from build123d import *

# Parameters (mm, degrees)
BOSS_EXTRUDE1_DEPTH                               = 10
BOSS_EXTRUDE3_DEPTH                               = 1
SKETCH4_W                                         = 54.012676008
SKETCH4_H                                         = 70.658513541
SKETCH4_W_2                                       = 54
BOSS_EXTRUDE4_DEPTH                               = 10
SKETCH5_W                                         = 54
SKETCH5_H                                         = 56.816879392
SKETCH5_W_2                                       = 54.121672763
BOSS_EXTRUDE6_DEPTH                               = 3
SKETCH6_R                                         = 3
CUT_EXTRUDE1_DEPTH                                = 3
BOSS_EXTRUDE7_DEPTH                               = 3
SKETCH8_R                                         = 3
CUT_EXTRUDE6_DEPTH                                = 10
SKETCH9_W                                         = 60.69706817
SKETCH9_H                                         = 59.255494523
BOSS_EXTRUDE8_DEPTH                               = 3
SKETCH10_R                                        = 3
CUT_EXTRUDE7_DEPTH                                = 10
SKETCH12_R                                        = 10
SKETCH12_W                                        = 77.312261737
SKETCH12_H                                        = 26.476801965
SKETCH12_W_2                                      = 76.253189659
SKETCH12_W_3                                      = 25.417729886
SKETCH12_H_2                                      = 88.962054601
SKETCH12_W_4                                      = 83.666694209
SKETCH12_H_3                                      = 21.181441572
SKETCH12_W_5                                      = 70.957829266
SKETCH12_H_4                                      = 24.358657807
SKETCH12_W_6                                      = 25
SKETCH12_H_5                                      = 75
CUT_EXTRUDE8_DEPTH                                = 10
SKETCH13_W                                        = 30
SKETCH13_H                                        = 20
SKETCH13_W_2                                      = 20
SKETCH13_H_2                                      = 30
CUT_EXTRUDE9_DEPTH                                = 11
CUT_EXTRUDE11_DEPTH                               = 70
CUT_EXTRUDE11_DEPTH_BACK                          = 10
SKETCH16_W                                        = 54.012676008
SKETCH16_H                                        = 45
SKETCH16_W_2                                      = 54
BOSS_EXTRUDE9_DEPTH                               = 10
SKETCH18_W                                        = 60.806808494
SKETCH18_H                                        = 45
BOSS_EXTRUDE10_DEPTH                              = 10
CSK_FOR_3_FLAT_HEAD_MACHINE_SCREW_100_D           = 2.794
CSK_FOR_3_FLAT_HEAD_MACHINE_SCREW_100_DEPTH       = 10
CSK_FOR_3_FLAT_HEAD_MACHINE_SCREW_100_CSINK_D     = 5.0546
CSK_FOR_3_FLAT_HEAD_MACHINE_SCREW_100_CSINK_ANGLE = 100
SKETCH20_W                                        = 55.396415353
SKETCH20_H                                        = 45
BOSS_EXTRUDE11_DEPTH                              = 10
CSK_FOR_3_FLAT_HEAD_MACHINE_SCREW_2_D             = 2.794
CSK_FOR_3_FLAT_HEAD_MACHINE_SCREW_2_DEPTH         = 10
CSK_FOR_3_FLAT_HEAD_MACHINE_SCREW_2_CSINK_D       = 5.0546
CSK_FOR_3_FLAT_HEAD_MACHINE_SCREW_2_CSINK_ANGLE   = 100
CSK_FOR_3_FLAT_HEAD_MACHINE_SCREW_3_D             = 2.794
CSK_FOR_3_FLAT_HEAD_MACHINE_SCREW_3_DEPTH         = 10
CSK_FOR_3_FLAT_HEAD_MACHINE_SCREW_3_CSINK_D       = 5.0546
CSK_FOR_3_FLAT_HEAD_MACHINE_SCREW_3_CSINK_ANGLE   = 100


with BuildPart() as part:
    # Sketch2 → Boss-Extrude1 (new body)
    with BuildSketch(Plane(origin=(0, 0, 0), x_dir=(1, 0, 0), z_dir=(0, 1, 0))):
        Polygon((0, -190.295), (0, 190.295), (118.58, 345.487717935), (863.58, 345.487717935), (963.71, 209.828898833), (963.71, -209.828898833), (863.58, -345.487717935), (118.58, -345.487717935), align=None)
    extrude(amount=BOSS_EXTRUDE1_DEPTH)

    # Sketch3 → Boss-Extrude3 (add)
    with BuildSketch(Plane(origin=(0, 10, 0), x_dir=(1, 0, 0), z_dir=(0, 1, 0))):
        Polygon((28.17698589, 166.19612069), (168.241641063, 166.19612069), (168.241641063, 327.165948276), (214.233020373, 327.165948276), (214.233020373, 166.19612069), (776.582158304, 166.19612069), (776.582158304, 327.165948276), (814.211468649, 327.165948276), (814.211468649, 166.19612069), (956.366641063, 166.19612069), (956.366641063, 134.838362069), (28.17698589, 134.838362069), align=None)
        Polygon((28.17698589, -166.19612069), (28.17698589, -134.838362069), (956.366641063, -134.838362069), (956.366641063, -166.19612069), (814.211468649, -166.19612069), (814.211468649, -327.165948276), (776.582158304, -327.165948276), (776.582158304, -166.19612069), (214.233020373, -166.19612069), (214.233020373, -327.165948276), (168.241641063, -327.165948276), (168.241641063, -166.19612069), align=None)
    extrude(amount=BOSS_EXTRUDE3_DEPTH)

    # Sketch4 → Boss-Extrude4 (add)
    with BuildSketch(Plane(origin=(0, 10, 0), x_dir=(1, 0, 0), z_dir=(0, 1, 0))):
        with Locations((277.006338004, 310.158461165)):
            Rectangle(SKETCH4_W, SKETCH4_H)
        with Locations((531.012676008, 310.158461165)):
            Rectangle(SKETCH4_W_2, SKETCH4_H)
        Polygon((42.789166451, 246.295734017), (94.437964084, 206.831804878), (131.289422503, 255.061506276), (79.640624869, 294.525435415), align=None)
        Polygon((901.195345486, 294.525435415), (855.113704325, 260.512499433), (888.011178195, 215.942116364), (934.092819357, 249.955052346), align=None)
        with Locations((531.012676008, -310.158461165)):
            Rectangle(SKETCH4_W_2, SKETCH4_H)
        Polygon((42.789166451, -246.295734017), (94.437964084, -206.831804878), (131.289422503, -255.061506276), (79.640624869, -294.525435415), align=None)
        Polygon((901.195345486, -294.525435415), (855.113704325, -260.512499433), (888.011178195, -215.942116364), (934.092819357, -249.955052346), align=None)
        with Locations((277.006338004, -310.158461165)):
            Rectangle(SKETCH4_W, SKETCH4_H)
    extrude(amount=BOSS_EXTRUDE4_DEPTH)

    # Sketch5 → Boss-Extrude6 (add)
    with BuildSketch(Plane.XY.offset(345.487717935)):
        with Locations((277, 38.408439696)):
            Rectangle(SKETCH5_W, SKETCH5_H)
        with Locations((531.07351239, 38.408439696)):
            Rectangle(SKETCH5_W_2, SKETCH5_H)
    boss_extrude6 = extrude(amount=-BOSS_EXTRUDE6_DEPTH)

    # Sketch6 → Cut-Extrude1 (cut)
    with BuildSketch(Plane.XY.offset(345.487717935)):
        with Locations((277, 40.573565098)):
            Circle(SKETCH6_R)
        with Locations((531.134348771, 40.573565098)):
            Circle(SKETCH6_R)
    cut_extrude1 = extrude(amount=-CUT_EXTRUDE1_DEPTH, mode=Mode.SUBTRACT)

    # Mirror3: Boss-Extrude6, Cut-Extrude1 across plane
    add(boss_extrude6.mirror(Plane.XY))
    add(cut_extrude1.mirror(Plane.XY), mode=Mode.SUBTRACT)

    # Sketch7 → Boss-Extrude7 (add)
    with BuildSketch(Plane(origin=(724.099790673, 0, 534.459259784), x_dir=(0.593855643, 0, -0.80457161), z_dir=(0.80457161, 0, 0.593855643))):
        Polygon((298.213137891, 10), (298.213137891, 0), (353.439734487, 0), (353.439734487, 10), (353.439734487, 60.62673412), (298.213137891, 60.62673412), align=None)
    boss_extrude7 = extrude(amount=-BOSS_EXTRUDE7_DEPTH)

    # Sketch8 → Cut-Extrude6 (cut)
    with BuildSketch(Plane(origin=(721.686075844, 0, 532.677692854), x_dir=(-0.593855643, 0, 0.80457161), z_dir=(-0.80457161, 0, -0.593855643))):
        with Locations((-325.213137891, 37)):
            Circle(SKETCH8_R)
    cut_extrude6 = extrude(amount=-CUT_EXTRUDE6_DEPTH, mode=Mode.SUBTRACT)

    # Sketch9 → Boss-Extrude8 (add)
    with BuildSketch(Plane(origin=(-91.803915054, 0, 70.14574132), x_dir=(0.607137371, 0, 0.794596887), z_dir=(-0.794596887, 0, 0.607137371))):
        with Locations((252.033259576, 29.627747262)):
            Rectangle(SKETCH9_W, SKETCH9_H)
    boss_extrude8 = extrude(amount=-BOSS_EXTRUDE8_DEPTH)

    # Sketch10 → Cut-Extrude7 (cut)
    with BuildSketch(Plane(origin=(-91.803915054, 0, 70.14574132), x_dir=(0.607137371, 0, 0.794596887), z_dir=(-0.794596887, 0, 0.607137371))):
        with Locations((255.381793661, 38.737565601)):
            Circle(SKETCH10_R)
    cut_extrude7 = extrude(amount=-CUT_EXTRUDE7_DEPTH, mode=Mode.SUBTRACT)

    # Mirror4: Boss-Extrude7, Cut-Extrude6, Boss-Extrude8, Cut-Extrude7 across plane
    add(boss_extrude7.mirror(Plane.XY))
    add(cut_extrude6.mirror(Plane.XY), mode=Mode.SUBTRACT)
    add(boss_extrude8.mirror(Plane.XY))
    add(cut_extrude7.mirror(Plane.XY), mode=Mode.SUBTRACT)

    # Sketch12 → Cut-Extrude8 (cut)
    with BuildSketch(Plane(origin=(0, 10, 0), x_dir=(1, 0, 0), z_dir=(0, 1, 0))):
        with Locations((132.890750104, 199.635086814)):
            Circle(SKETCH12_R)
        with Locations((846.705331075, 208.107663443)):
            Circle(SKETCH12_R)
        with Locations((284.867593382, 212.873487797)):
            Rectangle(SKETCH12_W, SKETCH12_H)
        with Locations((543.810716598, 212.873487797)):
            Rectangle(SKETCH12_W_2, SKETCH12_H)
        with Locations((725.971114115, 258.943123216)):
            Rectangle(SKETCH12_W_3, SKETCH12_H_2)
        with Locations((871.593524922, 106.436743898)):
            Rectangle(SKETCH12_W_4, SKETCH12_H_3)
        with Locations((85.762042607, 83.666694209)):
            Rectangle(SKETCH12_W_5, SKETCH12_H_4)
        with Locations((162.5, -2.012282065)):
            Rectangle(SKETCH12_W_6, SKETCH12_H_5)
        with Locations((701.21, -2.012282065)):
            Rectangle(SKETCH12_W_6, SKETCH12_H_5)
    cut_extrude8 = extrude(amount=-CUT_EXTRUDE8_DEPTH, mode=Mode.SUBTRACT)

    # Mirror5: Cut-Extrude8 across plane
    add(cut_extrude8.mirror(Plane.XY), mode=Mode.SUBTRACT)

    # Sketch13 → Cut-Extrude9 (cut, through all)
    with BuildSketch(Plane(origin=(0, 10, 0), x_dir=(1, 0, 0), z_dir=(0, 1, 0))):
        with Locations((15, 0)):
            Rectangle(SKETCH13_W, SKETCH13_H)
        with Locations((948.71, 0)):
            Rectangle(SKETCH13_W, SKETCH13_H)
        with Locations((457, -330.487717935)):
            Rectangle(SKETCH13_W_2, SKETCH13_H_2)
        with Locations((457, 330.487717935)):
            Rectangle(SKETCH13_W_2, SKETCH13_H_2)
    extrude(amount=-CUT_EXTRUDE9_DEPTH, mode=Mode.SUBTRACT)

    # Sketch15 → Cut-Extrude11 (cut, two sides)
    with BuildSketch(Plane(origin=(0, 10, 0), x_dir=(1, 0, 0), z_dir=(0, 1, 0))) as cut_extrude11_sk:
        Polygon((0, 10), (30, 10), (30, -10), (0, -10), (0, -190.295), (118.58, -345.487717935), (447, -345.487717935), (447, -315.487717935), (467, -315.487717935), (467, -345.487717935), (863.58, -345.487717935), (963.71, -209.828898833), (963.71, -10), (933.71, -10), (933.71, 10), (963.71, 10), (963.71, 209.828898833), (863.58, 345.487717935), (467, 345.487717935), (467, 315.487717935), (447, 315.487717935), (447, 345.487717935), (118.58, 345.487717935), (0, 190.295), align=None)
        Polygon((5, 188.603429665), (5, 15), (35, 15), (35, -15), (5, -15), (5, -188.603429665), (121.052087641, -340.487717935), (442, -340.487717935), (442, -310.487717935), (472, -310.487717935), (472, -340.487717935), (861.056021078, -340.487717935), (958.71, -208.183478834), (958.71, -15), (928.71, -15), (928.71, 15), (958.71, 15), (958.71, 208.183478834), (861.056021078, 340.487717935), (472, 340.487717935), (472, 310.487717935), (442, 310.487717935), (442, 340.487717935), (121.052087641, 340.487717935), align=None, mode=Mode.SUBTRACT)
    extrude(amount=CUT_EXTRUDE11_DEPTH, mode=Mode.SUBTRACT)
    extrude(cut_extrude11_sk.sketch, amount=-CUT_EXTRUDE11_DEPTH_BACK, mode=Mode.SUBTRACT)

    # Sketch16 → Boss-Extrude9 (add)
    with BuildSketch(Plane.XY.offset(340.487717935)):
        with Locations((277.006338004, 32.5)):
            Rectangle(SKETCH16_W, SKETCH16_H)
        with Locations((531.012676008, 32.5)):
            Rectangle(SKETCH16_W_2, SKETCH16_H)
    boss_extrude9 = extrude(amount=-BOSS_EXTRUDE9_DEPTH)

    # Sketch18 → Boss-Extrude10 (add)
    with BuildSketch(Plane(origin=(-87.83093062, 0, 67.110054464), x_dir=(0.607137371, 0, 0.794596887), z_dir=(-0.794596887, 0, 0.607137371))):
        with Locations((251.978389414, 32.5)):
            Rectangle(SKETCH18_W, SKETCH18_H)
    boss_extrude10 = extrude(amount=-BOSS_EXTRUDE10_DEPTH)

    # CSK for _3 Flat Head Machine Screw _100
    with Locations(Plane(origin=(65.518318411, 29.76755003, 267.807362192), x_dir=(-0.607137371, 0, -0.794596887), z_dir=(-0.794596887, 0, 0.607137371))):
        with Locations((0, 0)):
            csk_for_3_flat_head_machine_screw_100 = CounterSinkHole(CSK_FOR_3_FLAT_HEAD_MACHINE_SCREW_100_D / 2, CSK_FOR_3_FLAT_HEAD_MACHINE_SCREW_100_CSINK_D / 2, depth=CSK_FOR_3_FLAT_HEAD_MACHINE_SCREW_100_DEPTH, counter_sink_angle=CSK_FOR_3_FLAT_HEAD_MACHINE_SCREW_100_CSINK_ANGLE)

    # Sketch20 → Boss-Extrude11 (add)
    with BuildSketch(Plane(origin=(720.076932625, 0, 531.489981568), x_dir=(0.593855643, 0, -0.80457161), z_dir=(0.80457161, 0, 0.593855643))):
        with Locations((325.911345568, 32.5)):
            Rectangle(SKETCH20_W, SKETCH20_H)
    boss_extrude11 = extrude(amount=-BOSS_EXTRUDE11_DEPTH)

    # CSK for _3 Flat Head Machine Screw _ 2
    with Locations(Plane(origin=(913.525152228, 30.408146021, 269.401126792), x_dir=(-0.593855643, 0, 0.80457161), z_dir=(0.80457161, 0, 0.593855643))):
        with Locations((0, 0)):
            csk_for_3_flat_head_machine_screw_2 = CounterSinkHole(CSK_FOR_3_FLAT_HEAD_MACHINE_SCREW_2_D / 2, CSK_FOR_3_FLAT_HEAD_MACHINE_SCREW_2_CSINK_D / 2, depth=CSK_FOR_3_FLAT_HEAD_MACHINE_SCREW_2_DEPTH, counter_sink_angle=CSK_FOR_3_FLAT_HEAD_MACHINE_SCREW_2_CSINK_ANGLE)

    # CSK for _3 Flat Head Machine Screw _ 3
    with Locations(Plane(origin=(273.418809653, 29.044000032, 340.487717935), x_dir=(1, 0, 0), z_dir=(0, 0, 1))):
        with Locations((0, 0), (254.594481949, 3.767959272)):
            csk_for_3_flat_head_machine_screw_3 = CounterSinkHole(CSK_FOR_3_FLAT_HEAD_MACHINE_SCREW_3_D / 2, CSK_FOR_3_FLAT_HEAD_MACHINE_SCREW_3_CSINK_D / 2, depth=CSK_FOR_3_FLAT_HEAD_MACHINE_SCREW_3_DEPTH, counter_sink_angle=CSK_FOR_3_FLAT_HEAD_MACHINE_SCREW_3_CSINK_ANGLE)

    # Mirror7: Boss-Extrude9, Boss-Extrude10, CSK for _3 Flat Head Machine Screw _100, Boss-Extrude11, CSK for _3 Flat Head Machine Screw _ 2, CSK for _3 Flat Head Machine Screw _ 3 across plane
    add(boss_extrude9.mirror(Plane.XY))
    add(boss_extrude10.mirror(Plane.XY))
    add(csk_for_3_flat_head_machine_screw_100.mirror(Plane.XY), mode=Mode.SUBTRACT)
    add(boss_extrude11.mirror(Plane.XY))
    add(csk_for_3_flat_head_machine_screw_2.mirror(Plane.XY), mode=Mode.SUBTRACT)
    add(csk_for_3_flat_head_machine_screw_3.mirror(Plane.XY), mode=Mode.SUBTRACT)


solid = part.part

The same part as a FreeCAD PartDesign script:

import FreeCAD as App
import Part
import Sketcher


def add_polygon(sketch, points):
    """Adds a closed chain of lines whose ends are joined by coincident constraints."""
    first, n = sketch.GeometryCount, len(points)
    for a, b in zip(points, points[1:] + points[:1]):
        sketch.addGeometry(Part.LineSegment(App.Vector(*a, 0), App.Vector(*b, 0)), False)
    for i in range(n):
        sketch.addConstraint(Sketcher.Constraint("Coincident", first + i, 2, first + (i + 1) % n, 1))

doc = App.newDocument("Part")
body = doc.addObject("PartDesign::Body", "Body")

sketch1 = body.newObject("Sketcher::SketchObject", "Sketch")
sketch1.AttachmentSupport = (doc.getObject("XZ_Plane"), [""])
sketch1.MapMode = "FlatFace"
add_polygon(sketch1, [(0, -190), (0, 190), (119, 345), (864, 345), (964, 210), (964, -210), (864, -345), (119, -345)])
sketch1.addConstraint(Sketcher.Constraint("Vertical", 0))
sketch1.addConstraint(Sketcher.Constraint("Horizontal", 2))
sketch1.addConstraint(Sketcher.Constraint("Vertical", 4))
sketch1.addConstraint(Sketcher.Constraint("Horizontal", 6))
sketch1.addConstraint(Sketcher.Constraint("Symmetric", 0, 2, 7, 2, -1, 1))
sketch1.addConstraint(Sketcher.Constraint("Symmetric", 2, 2, 5, 2, -1))
sketch1.addConstraint(Sketcher.Constraint("Vertical", 1, 2, 6, 2))
sketch1.addConstraint(Sketcher.Constraint("Equal", 3, 5))
sketch1.addConstraint(Sketcher.Constraint("DistanceX", 2, 1, 2, 2, 745.0))
sketch1.addConstraint(Sketcher.Constraint("DistanceY", 0, 1, 0, 2, 380.59))
sketch1.addConstraint(Sketcher.Constraint("Distance", 1, 195.31))
sketch1.addConstraint(Sketcher.Constraint("Distance", 3, 168.61))
sketch1.addConstraint(Sketcher.Constraint("DistanceX", -1, 1, 1, 2, 118.58))
sketch1.addConstraint(Sketcher.Constraint("DistanceX", -1, 1, 3, 2, 963.71))
pad1 = body.newObject("PartDesign::Pad", "Pad")
pad1.Profile = sketch1
pad1.Length = 10
pad1.Reversed = True

sketch2 = body.newObject("Sketcher::SketchObject", "Sketch001")
sketch2.AttachmentSupport = (doc.getObject("XZ_Plane"), [""])
sketch2.MapMode = "FlatFace"
sketch2.AttachmentOffset = App.Placement(App.Vector(0, 0, -10), App.Rotation())
add_polygon(sketch2, [(168, -166), (28, -166), (28, -135), (956, -135), (956, -166), (814, -166), (814, -327), (777, -327), (777, -166), (214, -166), (214, -327), (168, -327)])
add_polygon(sketch2, [(28, 135), (28, 166), (168, 166), (168, 327), (214, 327), (214, 166), (777, 166), (777, 327), (814, 327), (814, 166), (956, 166), (956, 135)])
sketch2.addConstraint(Sketcher.Constraint("Horizontal", 0))
sketch2.addConstraint(Sketcher.Constraint("Vertical", 1))
sketch2.addConstraint(Sketcher.Constraint("Horizontal", 2))
sketch2.addConstraint(Sketcher.Constraint("Vertical", 3))
sketch2.addConstraint(Sketcher.Constraint("Horizontal", 4))
sketch2.addConstraint(Sketcher.Constraint("Vertical", 5))
sketch2.addConstraint(Sketcher.Constraint("Horizontal", 6))
sketch2.addConstraint(Sketcher.Constraint("Vertical", 7))
sketch2.addConstraint(Sketcher.Constraint("Horizontal", 8))
sketch2.addConstraint(Sketcher.Constraint("Vertical", 9))
sketch2.addConstraint(Sketcher.Constraint("Horizontal", 10))
sketch2.addConstraint(Sketcher.Constraint("Vertical", 11))
sketch2.addConstraint(Sketcher.Constraint("Vertical", 12))
sketch2.addConstraint(Sketcher.Constraint("Horizontal", 13))
sketch2.addConstraint(Sketcher.Constraint("Vertical", 14))
sketch2.addConstraint(Sketcher.Constraint("Horizontal", 15))
sketch2.addConstraint(Sketcher.Constraint("Vertical", 16))
sketch2.addConstraint(Sketcher.Constraint("Horizontal", 17))
sketch2.addConstraint(Sketcher.Constraint("Vertical", 18))
sketch2.addConstraint(Sketcher.Constraint("Horizontal", 19))
sketch2.addConstraint(Sketcher.Constraint("Vertical", 20))
sketch2.addConstraint(Sketcher.Constraint("Horizontal", 21))
sketch2.addConstraint(Sketcher.Constraint("Vertical", 22))
sketch2.addConstraint(Sketcher.Constraint("Horizontal", 23))
sketch2.addConstraint(Sketcher.Constraint("Symmetric", 0, 2, 12, 2, -1))
sketch2.addConstraint(Sketcher.Constraint("Symmetric", 10, 2, 14, 2, -1))
sketch2.addConstraint(Sketcher.Constraint("Symmetric", 8, 2, 16, 2, -1))
sketch2.addConstraint(Sketcher.Constraint("Symmetric", 6, 2, 18, 2, -1))
sketch2.addConstraint(Sketcher.Constraint("Symmetric", 4, 2, 20, 2, -1))
sketch2.addConstraint(Sketcher.Constraint("Symmetric", 2, 2, 22, 2, -1))
sketch2.addConstraint(Sketcher.Constraint("Horizontal", 0, 2, 3, 2))
sketch2.addConstraint(Sketcher.Constraint("Horizontal", 4, 2, 7, 2))
sketch2.addConstraint(Sketcher.Constraint("Horizontal", 6, 2, 9, 2))
sketch2.addConstraint(Sketcher.Constraint("DistanceX", 6, 2, 6, 1, 37.62931))
sketch2.addConstraint(Sketcher.Constraint("DistanceX", 10, 2, 10, 1, 45.991379))
sketch2.addConstraint(Sketcher.Constraint("DistanceY", 1, 1, 1, 2, 31.357759))
sketch2.addConstraint(Sketcher.Constraint("DistanceX", 0, 2, 0, 1, 140.064655))
sketch2.addConstraint(Sketcher.Constraint("DistanceX", 2, 1, 2, 2, 928.189655))
sketch2.addConstraint(Sketcher.Constraint("DistanceX", 4, 2, 4, 1, 142.155172))
sketch2.addConstraint(Sketcher.Constraint("DistanceY", 5, 2, 5, 1, 160.969828))
sketch2.addConstraint(Sketcher.Constraint("DistanceY", 0, 2, -1, 1, 166.196121))
sketch2.addConstraint(Sketcher.Constraint("DistanceX", -1, 1, 2, 2, 956.366641))
pad2 = body.newObject("PartDesign::Pad", "Pad001")
pad2.Profile = sketch2
pad2.Length = 1
pad2.Reversed = True

sketch3 = body.newObject("Sketcher::SketchObject", "Sketch002")
sketch3.AttachmentSupport = (doc.getObject("XZ_Plane"), [""])
sketch3.MapMode = "FlatFace"
sketch3.AttachmentOffset = App.Placement(App.Vector(0, 0, -10), App.Rotation())
add_polygon(sketch3, [(250, -345), (250, -275), (304, -275), (304, -345)])
add_polygon(sketch3, [(504, -345), (504, -275), (558, -275), (558, -345)])
add_polygon(sketch3, [(43, -246), (94, -207), (131, -255), (80, -295)])
add_polygon(sketch3, [(901, -295), (855, -261), (888, -216), (934, -250)])
add_polygon(sketch3, [(504, 275), (504, 345), (558, 345), (558, 275)])
add_polygon(sketch3, [(94, 207), (43, 246), (80, 295), (131, 255)])
add_polygon(sketch3, [(855, 261), (901, 295), (934, 250), (888, 216)])
add_polygon(sketch3, [(250, 275), (250, 345), (304, 345), (304, 275)])
sketch3.addConstraint(Sketcher.Constraint("Vertical", 0))
sketch3.addConstraint(Sketcher.Constraint("Horizontal", 1))
sketch3.addConstraint(Sketcher.Constraint("Vertical", 2))
sketch3.addConstraint(Sketcher.Constraint("Horizontal", 3))
sketch3.addConstraint(Sketcher.Constraint("Vertical", 4))
sketch3.addConstraint(Sketcher.Constraint("Horizontal", 5))
sketch3.addConstraint(Sketcher.Constraint("Vertical", 6))
sketch3.addConstraint(Sketcher.Constraint("Horizontal", 7))
sketch3.addConstraint(Sketcher.Constraint("Vertical", 16))
sketch3.addConstraint(Sketcher.Constraint("Horizontal", 17))
sketch3.addConstraint(Sketcher.Constraint("Vertical", 18))
sketch3.addConstraint(Sketcher.Constraint("Horizontal", 19))
sketch3.addConstraint(Sketcher.Constraint("Vertical", 28))
sketch3.addConstraint(Sketcher.Constraint("Horizontal", 29))
sketch3.addConstraint(Sketcher.Constraint("Vertical", 30))
sketch3.addConstraint(Sketcher.Constraint("Horizontal", 31))
sketch3.addConstraint(Sketcher.Constraint("Symmetric", 7, 2, 16, 2, -1))
sketch3.addConstraint(Sketcher.Constraint("Symmetric", 5, 2, 18, 2, -1))
sketch3.addConstraint(Sketcher.Constraint("Symmetric", 11, 2, 20, 2, -1))
sketch3.addConstraint(Sketcher.Constraint("Symmetric", 10, 2, 21, 2, -1))
sketch3.addConstraint(Sketcher.Constraint("Symmetric", 9, 2, 22, 2, -1))
sketch3.addConstraint(Sketcher.Constraint("Symmetric", 8, 2, 23, 2, -1))
sketch3.addConstraint(Sketcher.Constraint("Symmetric", 15, 2, 24, 2, -1))
sketch3.addConstraint(Sketcher.Constraint("Symmetric", 14, 2, 25, 2, -1))
sketch3.addConstraint(Sketcher.Constraint("Symmetric", 13, 2, 26, 2, -1))
sketch3.addConstraint(Sketcher.Constraint("Symmetric", 12, 2, 27, 2, -1))
sketch3.addConstraint(Sketcher.Constraint("Symmetric", 3, 2, 28, 2, -1))
sketch3.addConstraint(Sketcher.Constraint("Symmetric", 1, 2, 30, 2, -1))
sketch3.addConstraint(Sketcher.Constraint("Perpendicular", 8, 9))
sketch3.addConstraint(Sketcher.Constraint("Perpendicular", 9, 10))
sketch3.addConstraint(Sketcher.Constraint("Perpendicular", 10, 11))
sketch3.addConstraint(Sketcher.Constraint("Perpendicular", 12, 13))
sketch3.addConstraint(Sketcher.Constraint("Perpendicular", 13, 14))
sketch3.addConstraint(Sketcher.Constraint("Perpendicular", 14, 15))
sketch3.addConstraint(Sketcher.Constraint("Horizontal", 1, 2, 4, 2))
sketch3.addConstraint(Sketcher.Constraint("Horizontal", 3, 2, 6, 2))
sketch3.addConstraint(Sketcher.Constraint("Horizontal", 10, 2, 15, 2))
sketch3.addConstraint(Sketcher.Constraint("DistanceX", 5, 1, 5, 2, 54.0))
sketch3.addConstraint(Sketcher.Constraint("Distance", 8, 65.0))
sketch3.addConstraint(Sketcher.Constraint("DistanceX", -1, 1, 0, 2, 250.0))
sketch3.addConstraint(Sketcher.Constraint("DistanceX", 1, 2, 4, 2, 200.0))
sketch3.addConstraint(Sketcher.Constraint("DistanceY", 12, 2, -1, 1, 260.512499))
sketch3.addConstraint(Sketcher.Constraint("DistanceY", 0, 2, 8, 2, 67.9974))
sketch3.addConstraint(Sketcher.Constraint("DistanceY", 9, 2, 8, 2, 48.229701))
sketch3.addConstraint(Sketcher.Constraint("DistanceY", 6, 2, 13, 2, 129.545602))
sketch3.addConstraint(Sketcher.Constraint("Distance", 9, 60.697068))
sketch3.addConstraint(Sketcher.Constraint("DistanceX", 1, 1, 1, 2, 54.012676))
sketch3.addConstraint(Sketcher.Constraint("DistanceY", 0, 1, 0, 2, 70.658514))
sketch3.addConstraint(Sketcher.Constraint("DistanceX", -1, 1, 13, 2, 888.011178))
sketch3.addConstraint(Sketcher.Constraint("DistanceX", -1, 1, 14, 2, 934.092819))
sketch3.addConstraint(Sketcher.Constraint("DistanceX", 8, 2, 1, 2, 209.574712))
sketch3.addConstraint(Sketcher.Constraint("DistanceX", 5, 2, 12, 2, 297.101028))
pad3 = body.newObject("PartDesign::Pad", "Pad002")
pad3.Profile = sketch3
pad3.Length = 10
pad3.Reversed = True

sketch4 = body.newObject("Sketcher::SketchObject", "Sketch003")
sketch4.AttachmentSupport = (doc.getObject("XY_Plane"), [""])
sketch4.MapMode = "FlatFace"
sketch4.AttachmentOffset = App.Placement(App.Vector(0, 0, 345.487718), App.Rotation())
add_polygon(sketch4, [(250, 67), (250, 10), (304, 10), (304, 67)])
add_polygon(sketch4, [(504, 67), (504, 10), (558, 10), (558, 67)])
sketch4.addConstraint(Sketcher.Constraint("Vertical", 0))
sketch4.addConstraint(Sketcher.Constraint("Horizontal", 1))
sketch4.addConstraint(Sketcher.Constraint("Vertical", 2))
sketch4.addConstraint(Sketcher.Constraint("Horizontal", 3))
sketch4.addConstraint(Sketcher.Constraint("Vertical", 4))
sketch4.addConstraint(Sketcher.Constraint("Horizontal", 5))
sketch4.addConstraint(Sketcher.Constraint("Vertical", 6))
sketch4.addConstraint(Sketcher.Constraint("Horizontal", 7))
sketch4.addConstraint(Sketcher.Constraint("Horizontal", 1, 2, 4, 2))
sketch4.addConstraint(Sketcher.Constraint("Horizontal", 3, 2, 6, 2))
sketch4.addConstraint(Sketcher.Constraint("DistanceX", 1, 1, 1, 2, 54.0))
sketch4.addConstraint(Sketcher.Constraint("DistanceX", -1, 1, 0, 2, 250.0))
sketch4.addConstraint(Sketcher.Constraint("DistanceY", -1, 1, 0, 2, 10.0))
sketch4.addConstraint(Sketcher.Constraint("DistanceY", 0, 2, 0, 1, 56.816879))
sketch4.addConstraint(Sketcher.Constraint("DistanceX", 5, 1, 5, 2, 54.121673))
sketch4.addConstraint(Sketcher.Constraint("DistanceX", -1, 1, 5, 2, 558.134349))
pad4 = body.newObject("PartDesign::Pad", "Pad003")
pad4.Profile = sketch4
pad4.Length = 3
pad4.Reversed = True

sketch5 = body.newObject("Sketcher::SketchObject", "Sketch004")
sketch5.AttachmentSupport = (doc.getObject("XY_Plane"), [""])
sketch5.MapMode = "FlatFace"
sketch5.AttachmentOffset = App.Placement(App.Vector(0, 0, 345.487718), App.Rotation())
sketch5.addGeometry(Part.Circle(App.Vector(277, 40.6, 0), App.Vector(0, 0, 1), 3), False)
sketch5.addGeometry(Part.Circle(App.Vector(531.1, 40.6, 0), App.Vector(0, 0, 1), 3), False)
sketch5.addConstraint(Sketcher.Constraint("Equal", 0, 1))
sketch5.addConstraint(Sketcher.Constraint("Horizontal", 0, 3, 1, 3))
sketch5.addConstraint(Sketcher.Constraint("Diameter", 0, 6.0))
sketch5.addConstraint(Sketcher.Constraint("DistanceX", -1, 1, 0, 3, 277.0))
sketch5.addConstraint(Sketcher.Constraint("DistanceX", -1, 1, 1, 3, 531.134349))
sketch5.addConstraint(Sketcher.Constraint("DistanceY", -1, 1, 0, 3, 40.573565))
pocket1 = body.newObject("PartDesign::Pocket", "Pocket")
pocket1.Profile = sketch5
pocket1.Length = 3
doc.recompute()

mirrored = body.newObject("PartDesign::Mirrored", "Mirrored")
mirrored.Originals = [pad4, pocket1]
mirrored.MirrorPlane = (doc.getObject("XY_Plane"), [""])
body.Tip = mirrored

sketch6 = body.newObject("Sketcher::SketchObject", "Sketch005")
sketch6.Placement = App.Placement(App.Vector(724.099791, 0, 534.45926), App.Rotation(App.Vector(0.593855643, 0, -0.80457161), App.Vector(0, 1, 0), App.Vector(0.80457161, 0, 0.593855643), "ZXY"))
add_polygon(sketch6, [(298, 0), (353, 0), (353, 61), (298, 61)])
sketch6.addConstraint(Sketcher.Constraint("Horizontal", 0))
sketch6.addConstraint(Sketcher.Constraint("Vertical", 1))
sketch6.addConstraint(Sketcher.Constraint("Horizontal", 2))
sketch6.addConstraint(Sketcher.Constraint("Vertical", 3))
sketch6.addConstraint(Sketcher.Constraint("PointOnObject", 0, 2, -1))
sketch6.addConstraint(Sketcher.Constraint("DistanceX", 0, 1, 0, 2, 55.226597))
sketch6.addConstraint(Sketcher.Constraint("DistanceY", 1, 1, 1, 2, 60.626734))
sketch6.addConstraint(Sketcher.Constraint("DistanceX", -1, 1, 0, 2, 353.439735))
pad5 = body.newObject("PartDesign::Pad", "Pad004")
pad5.Profile = sketch6
pad5.Length = 3
pad5.Reversed = True

sketch7 = body.newObject("Sketcher::SketchObject", "Sketch006")
sketch7.Placement = App.Placement(App.Vector(721.686076, 0, 532.677693), App.Rotation(App.Vector(-0.593855643, 0, 0.80457161), App.Vector(0, 1, 0), App.Vector(-0.80457161, 0, -0.593855643), "ZXY"))
sketch7.addGeometry(Part.Circle(App.Vector(-325.2, 37, 0), App.Vector(0, 0, 1), 3), False)
sketch7.addConstraint(Sketcher.Constraint("Diameter", 0, 6.0))
sketch7.addConstraint(Sketcher.Constraint("DistanceY", -1, 1, 0, 3, 37.0))
sketch7.addConstraint(Sketcher.Constraint("DistanceX", 0, 3, -1, 1, 325.213138))
pocket2 = body.newObject("PartDesign::Pocket", "Pocket001")
pocket2.Profile = sketch7
pocket2.Length = 10

sketch8 = body.newObject("Sketcher::SketchObject", "Sketch007")
sketch8.Placement = App.Placement(App.Vector(-91.803915, 0, 70.145741), App.Rotation(App.Vector(0.607137371, 0, 0.794596887), App.Vector(0, 1, 0), App.Vector(-0.794596887, 0, 0.607137371), "ZXY"))
add_polygon(sketch8, [(222, 59), (222, 0), (282, 0), (282, 59)])
sketch8.addConstraint(Sketcher.Constraint("Vertical", 0))
sketch8.addConstraint(Sketcher.Constraint("Horizontal", 1))
sketch8.addConstraint(Sketcher.Constraint("Vertical", 2))
sketch8.addConstraint(Sketcher.Constraint("Horizontal", 3))
sketch8.addConstraint(Sketcher.Constraint("PointOnObject", 0, 2, -1))
sketch8.addConstraint(Sketcher.Constraint("DistanceX", 1, 1, 1, 2, 60.697068))
sketch8.addConstraint(Sketcher.Constraint("DistanceY", 0, 2, 0, 1, 59.255495))
sketch8.addConstraint(Sketcher.Constraint("DistanceX", -1, 1, 0, 2, 221.684726))
pad6 = body.newObject("PartDesign::Pad", "Pad005")
pad6.Profile = sketch8
pad6.Length = 3
pad6.Reversed = True

sketch9 = body.newObject("Sketcher::SketchObject", "Sketch008")
sketch9.Placement = App.Placement(App.Vector(-91.803915, 0, 70.145741), App.Rotation(App.Vector(0.607137371, 0, 0.794596887), App.Vector(0, 1, 0), App.Vector(-0.794596887, 0, 0.607137371), "ZXY"))
sketch9.addGeometry(Part.Circle(App.Vector(255.4, 38.7, 0), App.Vector(0, 0, 1), 3), False)
sketch9.addConstraint(Sketcher.Constraint("Diameter", 0, 6.0))
sketch9.addConstraint(Sketcher.Constraint("DistanceX", -1, 1, 0, 3, 255.381794))
sketch9.addConstraint(Sketcher.Constraint("DistanceY", -1, 1, 0, 3, 38.737566))
pocket3 = body.newObject("PartDesign::Pocket", "Pocket002")
pocket3.Profile = sketch9
pocket3.Length = 10
doc.recompute()

mirrored2 = body.newObject("PartDesign::Mirrored", "Mirrored001")
mirrored2.Originals = [pad5, pocket2, pad6, pocket3]
mirrored2.MirrorPlane = (doc.getObject("XY_Plane"), [""])
body.Tip = mirrored2

sketch10 = body.newObject("Sketcher::SketchObject", "Sketch009")
sketch10.AttachmentSupport = (doc.getObject("XZ_Plane"), [""])
sketch10.MapMode = "FlatFace"
sketch10.AttachmentOffset = App.Placement(App.Vector(0, 0, -10), App.Rotation())
sketch10.addGeometry(Part.Circle(App.Vector(133, -200, 0), App.Vector(0, 0, 1), 10), False)
sketch10.addGeometry(Part.Circle(App.Vector(847, -208, 0), App.Vector(0, 0, 1), 10), False)
add_polygon(sketch10, [(246, -226), (246, -200), (324, -200), (324, -226)])
add_polygon(sketch10, [(506, -226), (506, -200), (582, -200), (582, -226)])
add_polygon(sketch10, [(713, -303), (713, -214), (739, -214), (739, -303)])
add_polygon(sketch10, [(830, -117), (830, -96), (913, -96), (913, -117)])
add_polygon(sketch10, [(50, -96), (50, -71), (121, -71), (121, -96)])
add_polygon(sketch10, [(150, -35), (150, 40), (175, 40), (175, -35)])
add_polygon(sketch10, [(689, -35), (689, 40), (714, 40), (714, -35)])
sketch10.addConstraint(Sketcher.Constraint("Vertical", 2))
sketch10.addConstraint(Sketcher.Constraint("Horizontal", 3))
sketch10.addConstraint(Sketcher.Constraint("Vertical", 4))
sketch10.addConstraint(Sketcher.Constraint("Horizontal", 5))
sketch10.addConstraint(Sketcher.Constraint("Vertical", 6))
sketch10.addConstraint(Sketcher.Constraint("Horizontal", 7))
sketch10.addConstraint(Sketcher.Constraint("Vertical", 8))
sketch10.addConstraint(Sketcher.Constraint("Horizontal", 9))
sketch10.addConstraint(Sketcher.Constraint("Vertical", 10))
sketch10.addConstraint(Sketcher.Constraint("Horizontal", 11))
sketch10.addConstraint(Sketcher.Constraint("Vertical", 12))
sketch10.addConstraint(Sketcher.Constraint("Horizontal", 13))
sketch10.addConstraint(Sketcher.Constraint("Vertical", 14))
sketch10.addConstraint(Sketcher.Constraint("Horizontal", 15))
sketch10.addConstraint(Sketcher.Constraint("Vertical", 16))
sketch10.addConstraint(Sketcher.Constraint("Horizontal", 17))
sketch10.addConstraint(Sketcher.Constraint("Vertical", 18))
sketch10.addConstraint(Sketcher.Constraint("Horizontal", 19))
sketch10.addConstraint(Sketcher.Constraint("Vertical", 20))
sketch10.addConstraint(Sketcher.Constraint("Horizontal", 21))
sketch10.addConstraint(Sketcher.Constraint("Vertical", 22))
sketch10.addConstraint(Sketcher.Constraint("Horizontal", 23))
sketch10.addConstraint(Sketcher.Constraint("Vertical", 24))
sketch10.addConstraint(Sketcher.Constraint("Horizontal", 25))
sketch10.addConstraint(Sketcher.Constraint("Vertical", 26))
sketch10.addConstraint(Sketcher.Constraint("Horizontal", 27))
sketch10.addConstraint(Sketcher.Constraint("Vertical", 28))
sketch10.addConstraint(Sketcher.Constraint("Horizontal", 29))
sketch10.addConstraint(Sketcher.Constraint("Equal", 0, 1))
sketch10.addConstraint(Sketcher.Constraint("Horizontal", 0, 3, 2, 2))
sketch10.addConstraint(Sketcher.Constraint("Horizontal", 3, 2, 6, 2))
sketch10.addConstraint(Sketcher.Constraint("Horizontal", 5, 2, 8, 2))
sketch10.addConstraint(Sketcher.Constraint("Horizontal", 15, 2, 20, 2))
sketch10.addConstraint(Sketcher.Constraint("Horizontal", 23, 2, 26, 2))
sketch10.addConstraint(Sketcher.Constraint("Horizontal", 25, 2, 28, 2))
sketch10.addConstraint(Sketcher.Constraint("Equal", 25, 27))
sketch10.addConstraint(Sketcher.Constraint("Diameter", 0, 20.0))
sketch10.addConstraint(Sketcher.Constraint("DistanceX", 23, 1, 23, 2, 25.0))
sketch10.addConstraint(Sketcher.Constraint("DistanceY", 22, 1, 22, 2, 75.0))
sketch10.addConstraint(Sketcher.Constraint("DistanceX", -1, 1, 22, 2, 150.0))
sketch10.addConstraint(Sketcher.Constraint("DistanceX", -1, 1, 26, 2, 688.71))
sketch10.addConstraint(Sketcher.Constraint("DistanceY", 2, 1, 2, 2, 26.476802))
sketch10.addConstraint(Sketcher.Constraint("DistanceX", 3, 1, 3, 2, 77.312262))
sketch10.addConstraint(Sketcher.Constraint("DistanceX", 7, 1, 7, 2, 76.25319))
sketch10.addConstraint(Sketcher.Constraint("DistanceX", 11, 1, 11, 2, 25.41773))
sketch10.addConstraint(Sketcher.Constraint("DistanceX", 19, 1, 19, 2, 70.957829))
sketch10.addConstraint(Sketcher.Constraint("DistanceY", 14, 1, 14, 2, 21.181442))
sketch10.addConstraint(Sketcher.Constraint("DistanceX", 11, 2, 14, 2, 91.080199))
sketch10.addConstraint(Sketcher.Constraint("DistanceY", 1, 3, 16, 2, 91.080199))
sketch10.addConstraint(Sketcher.Constraint("DistanceX", 15, 1, 15, 2, 83.666694))
sketch10.addConstraint(Sketcher.Constraint("DistanceY", 10, 1, 10, 2, 88.962055))
sketch10.addConstraint(Sketcher.Constraint("DistanceY", 18, 1, 18, 2, 24.358658))
sketch10.addConstraint(Sketcher.Constraint("DistanceX", -1, 1, 0, 3, 132.89075))
sketch10.addConstraint(Sketcher.Constraint("DistanceX", -1, 1, 1, 3, 846.705331))
sketch10.addConstraint(Sketcher.Constraint("DistanceY", 4, 2, -1, 1, 226.111889))
sketch10.addConstraint(Sketcher.Constraint("DistanceX", -1, 1, 6, 2, 505.684122))
sketch10.addConstraint(Sketcher.Constraint("DistanceX", -1, 1, 10, 2, 713.262249))
sketch10.addConstraint(Sketcher.Constraint("DistanceY", 12, 2, -1, 1, 303.424151))
sketch10.addConstraint(Sketcher.Constraint("DistanceX", 2, 2, 1, 3, 600.493869))
sketch10.addConstraint(Sketcher.Constraint("DistanceY", 11, 2, 16, 2, 97.434631))
sketch10.addConstraint(Sketcher.Constraint("DistanceY", 0, 3, 22, 2, 239.147369))
sketch10.addConstraint(Sketcher.Constraint("DistanceX", -1, 1, 18, 2, 50.283128))
pocket4 = body.newObject("PartDesign::Pocket", "Pocket003")
pocket4.Profile = sketch10
pocket4.Length = 10
pocket4.Reversed = True
doc.recompute()

mirrored3 = body.newObject("PartDesign::Mirrored", "Mirrored002")
mirrored3.Originals = [pocket4]
mirrored3.MirrorPlane = (doc.getObject("XY_Plane"), [""])
body.Tip = mirrored3

sketch11 = body.newObject("Sketcher::SketchObject", "Sketch010")
sketch11.AttachmentSupport = (doc.getObject("XZ_Plane"), [""])
sketch11.MapMode = "FlatFace"
sketch11.AttachmentOffset = App.Placement(App.Vector(0, 0, -10), App.Rotation())
add_polygon(sketch11, [(0, -10), (0, 10), (30, 10), (30, -10)])
add_polygon(sketch11, [(934, -10), (934, 10), (964, 10), (964, -10)])
add_polygon(sketch11, [(447, 315), (447, 345), (467, 345), (467, 315)])
add_polygon(sketch11, [(447, -345), (447, -315), (467, -315), (467, -345)])
sketch11.addConstraint(Sketcher.Constraint("Vertical", 0))
sketch11.addConstraint(Sketcher.Constraint("Horizontal", 1))
sketch11.addConstraint(Sketcher.Constraint("Vertical", 2))
sketch11.addConstraint(Sketcher.Constraint("Horizontal", 3))
sketch11.addConstraint(Sketcher.Constraint("Vertical", 4))
sketch11.addConstraint(Sketcher.Constraint("Horizontal", 5))
sketch11.addConstraint(Sketcher.Constraint("Vertical", 6))
sketch11.addConstraint(Sketcher.Constraint("Horizontal", 7))
sketch11.addConstraint(Sketcher.Constraint("Vertical", 8))
sketch11.addConstraint(Sketcher.Constraint("Horizontal", 9))
sketch11.addConstraint(Sketcher.Constraint("Vertical", 10))
sketch11.addConstraint(Sketcher.Constraint("Horizontal", 11))
sketch11.addConstraint(Sketcher.Constraint("Vertical", 12))
sketch11.addConstraint(Sketcher.Constraint("Horizontal", 13))
sketch11.addConstraint(Sketcher.Constraint("Vertical", 14))
sketch11.addConstraint(Sketcher.Constraint("Horizontal", 15))
sketch11.addConstraint(Sketcher.Constraint("Symmetric", 0, 2, 3, 2, -1, 1))
sketch11.addConstraint(Sketcher.Constraint("Symmetric", 11, 2, 12, 2, -1))
sketch11.addConstraint(Sketcher.Constraint("Symmetric", 9, 2, 14, 2, -1))
sketch11.addConstraint(Sketcher.Constraint("Horizontal", 1, 2, 4, 2))
sketch11.addConstraint(Sketcher.Constraint("Horizontal", 3, 2, 6, 2))
sketch11.addConstraint(Sketcher.Constraint("Equal", 3, 5))
sketch11.addConstraint(Sketcher.Constraint("Equal", 15, 0))
sketch11.addConstraint(Sketcher.Constraint("Equal", 7, 8))
sketch11.addConstraint(Sketcher.Constraint("DistanceX", 1, 1, 1, 2, 30.0))
sketch11.addConstraint(Sketcher.Constraint("DistanceX", 9, 1, 9, 2, 20.0))
sketch11.addConstraint(Sketcher.Constraint("DistanceX", -1, 1, 8, 2, 447.0))
sketch11.addConstraint(Sketcher.Constraint("DistanceX", -1, 1, 4, 2, 933.71))
sketch11.addConstraint(Sketcher.Constraint("DistanceY", -1, 1, 8, 2, 345.487718))
pocket5 = body.newObject("PartDesign::Pocket", "Pocket004")
pocket5.Profile = sketch11
pocket5.Type = "ThroughAll"
pocket5.Reversed = True

sketch12 = body.newObject("Sketcher::SketchObject", "Sketch011")
sketch12.AttachmentSupport = (doc.getObject("XZ_Plane"), [""])
sketch12.MapMode = "FlatFace"
sketch12.AttachmentOffset = App.Placement(App.Vector(0, 0, -10), App.Rotation())
add_polygon(sketch12, [(0, -10), (30, -10), (30, 10), (0, 10), (0, 190), (119, 345), (447, 345), (447, 315), (467, 315), (467, 345), (864, 345), (964, 210), (964, 10), (934, 10), (934, -10), (964, -10), (964, -210), (864, -345), (467, -345), (467, -315), (447, -315), (447, -345), (119, -345), (0, -190)])
add_polygon(sketch12, [(5, -15), (5, -189), (121, -340), (442, -340), (442, -310), (472, -310), (472, -340), (861, -340), (959, -208), (959, -15), (929, -15), (929, 15), (959, 15), (959, 208), (861, 340), (472, 340), (472, 310), (442, 310), (442, 340), (121, 340), (5, 189), (5, 15), (35, 15), (35, -15)])
sketch12.addConstraint(Sketcher.Constraint("Horizontal", 0))
sketch12.addConstraint(Sketcher.Constraint("Vertical", 1))
sketch12.addConstraint(Sketcher.Constraint("Horizontal", 2))
sketch12.addConstraint(Sketcher.Constraint("Vertical", 3))
sketch12.addConstraint(Sketcher.Constraint("Horizontal", 5))
sketch12.addConstraint(Sketcher.Constraint("Vertical", 6))
sketch12.addConstraint(Sketcher.Constraint("Horizontal", 7))
sketch12.addConstraint(Sketcher.Constraint("Vertical", 8))
sketch12.addConstraint(Sketcher.Constraint("Horizontal", 9))
sketch12.addConstraint(Sketcher.Constraint("Vertical", 11))
sketch12.addConstraint(Sketcher.Constraint("Horizontal", 12))
sketch12.addConstraint(Sketcher.Constraint("Vertical", 13))
sketch12.addConstraint(Sketcher.Constraint("Horizontal", 14))
sketch12.addConstraint(Sketcher.Constraint("Vertical", 15))
sketch12.addConstraint(Sketcher.Constraint("Horizontal", 17))
sketch12.addConstraint(Sketcher.Constraint("Vertical", 18))
sketch12.addConstraint(Sketcher.Constraint("Horizontal", 19))
sketch12.addConstraint(Sketcher.Constraint("Vertical", 20))
sketch12.addConstraint(Sketcher.Constraint("Horizontal", 21))
sketch12.addConstraint(Sketcher.Constraint("Vertical", 23))
sketch12.addConstraint(Sketcher.Constraint("Vertical", 24))
sketch12.addConstraint(Sketcher.Constraint("Horizontal", 26))
sketch12.addConstraint(Sketcher.Constraint("Vertical", 27))
sketch12.addConstraint(Sketcher.Constraint("Horizontal", 28))
sketch12.addConstraint(Sketcher.Constraint("Vertical", 29))
sketch12.addConstraint(Sketcher.Constraint("Horizontal", 30))
sketch12.addConstraint(Sketcher.Constraint("Vertical", 32))
sketch12.addConstraint(Sketcher.Constraint("Horizontal", 33))
sketch12.addConstraint(Sketcher.Constraint("Vertical", 34))
sketch12.addConstraint(Sketcher.Constraint("Horizontal", 35))
sketch12.addConstraint(Sketcher.Constraint("Vertical", 36))
sketch12.addConstraint(Sketcher.Constraint("Horizontal", 38))
sketch12.addConstraint(Sketcher.Constraint("Vertical", 39))
sketch12.addConstraint(Sketcher.Constraint("Horizontal", 40))
sketch12.addConstraint(Sketcher.Constraint("Vertical", 41))
sketch12.addConstraint(Sketcher.Constraint("Horizontal", 42))
sketch12.addConstraint(Sketcher.Constraint("Vertical", 44))
sketch12.addConstraint(Sketcher.Constraint("Horizontal", 45))
sketch12.addConstraint(Sketcher.Constraint("Vertical", 46))
sketch12.addConstraint(Sketcher.Constraint("Horizontal", 47))
sketch12.addConstraint(Sketcher.Constraint("Symmetric", 3, 2, 22, 2, -1, 1))
sketch12.addConstraint(Sketcher.Constraint("Symmetric", 11, 2, 14, 2, -1))
sketch12.addConstraint(Sketcher.Constraint("Symmetric", 9, 2, 16, 2, -1))
sketch12.addConstraint(Sketcher.Constraint("Symmetric", 7, 2, 18, 2, -1))
sketch12.addConstraint(Sketcher.Constraint("Symmetric", 5, 2, 20, 2, -1))
sketch12.addConstraint(Sketcher.Constraint("Symmetric", 2, 2, 23, 2, -1))
sketch12.addConstraint(Sketcher.Constraint("Symmetric", 32, 2, 35, 2, -1))
sketch12.addConstraint(Sketcher.Constraint("Symmetric", 30, 2, 37, 2, -1))
sketch12.addConstraint(Sketcher.Constraint("Symmetric", 28, 2, 39, 2, -1))
sketch12.addConstraint(Sketcher.Constraint("Symmetric", 26, 2, 41, 2, -1))
sketch12.addConstraint(Sketcher.Constraint("Symmetric", 24, 2, 43, 2, -1))
sketch12.addConstraint(Sketcher.Constraint("Parallel", 22, 25))
sketch12.addConstraint(Sketcher.Constraint("Parallel", 16, 31))
sketch12.addConstraint(Sketcher.Constraint("Parallel", 10, 37))
sketch12.addConstraint(Sketcher.Constraint("Parallel", 4, 43))
sketch12.addConstraint(Sketcher.Constraint("Horizontal", 5, 2, 8, 2))
sketch12.addConstraint(Sketcher.Constraint("Horizontal", 2, 2, 11, 2))
sketch12.addConstraint(Sketcher.Constraint("Horizontal", 26, 2, 29, 2))
sketch12.addConstraint(Sketcher.Constraint("Horizontal", 35, 2, 44, 2))
sketch12.addConstraint(Sketcher.Constraint("Horizontal", 33, 2, 46, 2))
sketch12.addConstraint(Sketcher.Constraint("Vertical", 4, 2, 21, 2))
sketch12.addConstraint(Sketcher.Constraint("Equal", 2, 12))
sketch12.addConstraint(Sketcher.Constraint("Equal", 14, 28))
sketch12.addConstraint(Sketcher.Constraint("Equal", 28, 33))
sketch12.addConstraint(Sketcher.Constraint("Equal", 40, 45))
sketch12.addConstraint(Sketcher.Constraint("Equal", 19, 1))
sketch12.addConstraint(Sketcher.Constraint("Equal", 47, 6))
sketch12.addConstraint(Sketcher.Constraint("Equal", 11, 15))
sketch12.addConstraint(Sketcher.Constraint("Equal", 20, 27))
sketch12.addConstraint(Sketcher.Constraint("Equal", 29, 34))
sketch12.addConstraint(Sketcher.Constraint("DistanceX", 0, 1, 0, 2, 30.0))
sketch12.addConstraint(Sketcher.Constraint("DistanceX", 7, 1, 7, 2, 20.0))
sketch12.addConstraint(Sketcher.Constraint("DistanceX", -1, 1, 5, 2, 447.0))
sketch12.addConstraint(Sketcher.Constraint("DistanceX", -1, 1, 24, 2, 5.0))
sketch12.addConstraint(Sketcher.Constraint("DistanceX", -1, 1, 26, 2, 442.0))
sketch12.addConstraint(Sketcher.Constraint("DistanceX", 4, 2, 9, 2, 745.0))
sketch12.addConstraint(Sketcher.Constraint("DistanceY", 21, 2, 25, 2, 5.0))
sketch12.addConstraint(Sketcher.Constraint("DistanceX", 31, 2, 15, 2, 5.0))
sketch12.addConstraint(Sketcher.Constraint("DistanceX", 5, 1, 5, 2, 328.42))
sketch12.addConstraint(Sketcher.Constraint("Distance", 4, 195.31))
sketch12.addConstraint(Sketcher.Constraint("Distance", 10, 168.61))
sketch12.addConstraint(Sketcher.Constraint("DistanceY", 3, 1, 3, 2, 180.295))
sketch12.addConstraint(Sketcher.Constraint("DistanceX", -1, 1, 10, 2, 963.71))
sketch12.addConstraint(Sketcher.Constraint("Distance", 31, 164.440601))
sketch12.addConstraint(Sketcher.Constraint("DistanceY", 24, 2, 24, 1, 173.60343))
pocket6 = body.newObject("PartDesign::Pocket", "Pocket005")
pocket6.Profile = sketch12
pocket6.Type = "ThroughAll"
pocket6.Midplane = True

sketch13 = body.newObject("Sketcher::SketchObject", "Sketch012")
sketch13.AttachmentSupport = (doc.getObject("XY_Plane"), [""])
sketch13.MapMode = "FlatFace"
sketch13.AttachmentOffset = App.Placement(App.Vector(0, 0, 340.487718), App.Rotation())
add_polygon(sketch13, [(250, 55), (250, 10), (304, 10), (304, 55)])
add_polygon(sketch13, [(504, 55), (504, 10), (558, 10), (558, 55)])
sketch13.addConstraint(Sketcher.Constraint("Vertical", 0))
sketch13.addConstraint(Sketcher.Constraint("Horizontal", 1))
sketch13.addConstraint(Sketcher.Constraint("Vertical", 2))
sketch13.addConstraint(Sketcher.Constraint("Horizontal", 3))
sketch13.addConstraint(Sketcher.Constraint("Vertical", 4))
sketch13.addConstraint(Sketcher.Constraint("Horizontal", 5))
sketch13.addConstraint(Sketcher.Constraint("Vertical", 6))
sketch13.addConstraint(Sketcher.Constraint("Horizontal", 7))
sketch13.addConstraint(Sketcher.Constraint("Horizontal", 1, 2, 4, 2))
sketch13.addConstraint(Sketcher.Constraint("Horizontal", 3, 2, 6, 2))
sketch13.addConstraint(Sketcher.Constraint("DistanceX", 5, 1, 5, 2, 54.0))
sketch13.addConstraint(Sketcher.Constraint("DistanceY", 0, 2, 0, 1, 45.0))
sketch13.addConstraint(Sketcher.Constraint("DistanceX", -1, 1, 0, 2, 250.0))
sketch13.addConstraint(Sketcher.Constraint("DistanceY", -1, 1, 0, 2, 10.0))
sketch13.addConstraint(Sketcher.Constraint("DistanceX", 1, 2, 4, 2, 200.0))
sketch13.addConstraint(Sketcher.Constraint("DistanceX", 1, 1, 1, 2, 54.012676))
pad7 = body.newObject("PartDesign::Pad", "Pad006")
pad7.Profile = sketch13
pad7.Length = 10
pad7.Reversed = True

sketch14 = body.newObject("Sketcher::SketchObject", "Sketch013")
sketch14.Placement = App.Placement(App.Vector(-87.830931, 0, 67.110054), App.Rotation(App.Vector(0.607137371, 0, 0.794596887), App.Vector(0, 1, 0), App.Vector(-0.794596887, 0, 0.607137371), "ZXY"))
add_polygon(sketch14, [(222, 55), (222, 10), (282, 10), (282, 55)])
sketch14.addConstraint(Sketcher.Constraint("Vertical", 0))
sketch14.addConstraint(Sketcher.Constraint("Horizontal", 1))
sketch14.addConstraint(Sketcher.Constraint("Vertical", 2))
sketch14.addConstraint(Sketcher.Constraint("Horizontal", 3))
sketch14.addConstraint(Sketcher.Constraint("DistanceY", 0, 2, 0, 1, 45.0))
sketch14.addConstraint(Sketcher.Constraint("DistanceY", -1, 1, 0, 2, 10.0))
sketch14.addConstraint(Sketcher.Constraint("DistanceX", 1, 1, 1, 2, 60.806809))
sketch14.addConstraint(Sketcher.Constraint("DistanceX", -1, 1, 0, 2, 221.574985))
pad8 = body.newObject("PartDesign::Pad", "Pad007")
pad8.Profile = sketch14
pad8.Length = 10
pad8.Reversed = True

sketch15 = body.newObject("Sketcher::SketchObject", "Sketch014")
sketch15.Placement = App.Placement(App.Vector(-87.830931, 0, 67.110054), App.Rotation(App.Vector(-0.607137371, 0, -0.794596887), App.Vector(0, -1, 0), App.Vector(-0.794596887, 0, 0.607137371), "ZXY"))
sketch15.addGeometry(Part.Circle(App.Vector(-252.6, -29.8, 0), App.Vector(0, 0, 1), 1.4), False)
sketch15.addConstraint(Sketcher.Constraint("Diameter", 0, 2.794))
sketch15.addConstraint(Sketcher.Constraint("DistanceY", 0, 3, -1, 1, 29.76755))
sketch15.addConstraint(Sketcher.Constraint("DistanceX", 0, 3, -1, 1, 252.577516))
doc.recompute()
hole = body.newObject("PartDesign::Hole", "Hole")
hole.Profile = sketch15
hole.ThreadType = "None"
hole.Diameter = 2.794
hole.DepthType = "Dimension"
hole.Depth = 10
hole.DrillPoint = "Flat"
hole.HoleCutType = "Countersink"
hole.HoleCutDiameter = 5.0546
hole.HoleCutCountersinkAngle = 100

sketch16 = body.newObject("Sketcher::SketchObject", "Sketch015")
sketch16.Placement = App.Placement(App.Vector(720.076933, 0, 531.489982), App.Rotation(App.Vector(0.593855643, 0, -0.80457161), App.Vector(0, 1, 0), App.Vector(0.80457161, 0, 0.593855643), "ZXY"))
add_polygon(sketch16, [(298, 55), (298, 10), (354, 10), (354, 55)])
sketch16.addConstraint(Sketcher.Constraint("Vertical", 0))
sketch16.addConstraint(Sketcher.Constraint("Horizontal", 1))
sketch16.addConstraint(Sketcher.Constraint("Vertical", 2))
sketch16.addConstraint(Sketcher.Constraint("Horizontal", 3))
sketch16.addConstraint(Sketcher.Constraint("DistanceY", 0, 2, 0, 1, 45.0))
sketch16.addConstraint(Sketcher.Constraint("DistanceY", -1, 1, 0, 2, 10.0))
sketch16.addConstraint(Sketcher.Constraint("DistanceX", 1, 1, 1, 2, 55.396415))
sketch16.addConstraint(Sketcher.Constraint("DistanceX", -1, 1, 0, 2, 298.213138))
pad9 = body.newObject("PartDesign::Pad", "Pad008")
pad9.Profile = sketch16
pad9.Length = 10
pad9.Reversed = True

sketch17 = body.newObject("Sketcher::SketchObject", "Sketch016")
sketch17.Placement = App.Placement(App.Vector(720.076933, 0, 531.489981), App.Rotation(App.Vector(-0.593855643, 0, 0.80457161), App.Vector(0, -1, 0), App.Vector(0.80457161, 0, 0.593855643), "ZXY"))
sketch17.addGeometry(Part.Circle(App.Vector(-325.7, -30.4, 0), App.Vector(0, 0, 1), 1.4), False)
sketch17.addConstraint(Sketcher.Constraint("Diameter", 0, 2.794))
sketch17.addConstraint(Sketcher.Constraint("DistanceX", 0, 3, -1, 1, 325.749568))
sketch17.addConstraint(Sketcher.Constraint("DistanceY", 0, 3, -1, 1, 30.408146))
doc.recompute()
hole2 = body.newObject("PartDesign::Hole", "Hole001")
hole2.Profile = sketch17
hole2.ThreadType = "None"
hole2.Diameter = 2.794
hole2.DepthType = "Dimension"
hole2.Depth = 10
hole2.DrillPoint = "Flat"
hole2.HoleCutType = "Countersink"
hole2.HoleCutDiameter = 5.0546
hole2.HoleCutCountersinkAngle = 100

sketch18 = body.newObject("Sketcher::SketchObject", "Sketch017")
sketch18.AttachmentSupport = (doc.getObject("XY_Plane"), [""])
sketch18.MapMode = "FlatFace"
sketch18.AttachmentOffset = App.Placement(App.Vector(0, 0, 340.487718), App.Rotation())
sketch18.addGeometry(Part.Circle(App.Vector(273.4, 29, 0), App.Vector(0, 0, 1), 1.4), False)
sketch18.addGeometry(Part.Circle(App.Vector(528, 32.8, 0), App.Vector(0, 0, 1), 1.4), False)
sketch18.addConstraint(Sketcher.Constraint("Equal", 0, 1))
sketch18.addConstraint(Sketcher.Constraint("Diameter", 0, 2.794))
sketch18.addConstraint(Sketcher.Constraint("DistanceY", -1, 1, 0, 3, 29.044))
sketch18.addConstraint(Sketcher.Constraint("DistanceX", -1, 1, 0, 3, 273.41881))
sketch18.addConstraint(Sketcher.Constraint("DistanceX", -1, 1, 1, 3, 528.013292))
sketch18.addConstraint(Sketcher.Constraint("DistanceY", -1, 1, 1, 3, 32.811959))
doc.recompute()
hole3 = body.newObject("PartDesign::Hole", "Hole002")
hole3.Profile = sketch18
hole3.ThreadType = "None"
hole3.Diameter = 2.794
hole3.DepthType = "Dimension"
hole3.Depth = 10
hole3.DrillPoint = "Flat"
hole3.HoleCutType = "Countersink"
hole3.HoleCutDiameter = 5.0546
hole3.HoleCutCountersinkAngle = 100
doc.recompute()

mirrored4 = body.newObject("PartDesign::Mirrored", "Mirrored003")
mirrored4.Originals = [pad7, pad8, hole, pad9, hole2, hole3]
mirrored4.MirrorPlane = (doc.getObject("XY_Plane"), [""])
body.Tip = mirrored4

doc.recompute()
